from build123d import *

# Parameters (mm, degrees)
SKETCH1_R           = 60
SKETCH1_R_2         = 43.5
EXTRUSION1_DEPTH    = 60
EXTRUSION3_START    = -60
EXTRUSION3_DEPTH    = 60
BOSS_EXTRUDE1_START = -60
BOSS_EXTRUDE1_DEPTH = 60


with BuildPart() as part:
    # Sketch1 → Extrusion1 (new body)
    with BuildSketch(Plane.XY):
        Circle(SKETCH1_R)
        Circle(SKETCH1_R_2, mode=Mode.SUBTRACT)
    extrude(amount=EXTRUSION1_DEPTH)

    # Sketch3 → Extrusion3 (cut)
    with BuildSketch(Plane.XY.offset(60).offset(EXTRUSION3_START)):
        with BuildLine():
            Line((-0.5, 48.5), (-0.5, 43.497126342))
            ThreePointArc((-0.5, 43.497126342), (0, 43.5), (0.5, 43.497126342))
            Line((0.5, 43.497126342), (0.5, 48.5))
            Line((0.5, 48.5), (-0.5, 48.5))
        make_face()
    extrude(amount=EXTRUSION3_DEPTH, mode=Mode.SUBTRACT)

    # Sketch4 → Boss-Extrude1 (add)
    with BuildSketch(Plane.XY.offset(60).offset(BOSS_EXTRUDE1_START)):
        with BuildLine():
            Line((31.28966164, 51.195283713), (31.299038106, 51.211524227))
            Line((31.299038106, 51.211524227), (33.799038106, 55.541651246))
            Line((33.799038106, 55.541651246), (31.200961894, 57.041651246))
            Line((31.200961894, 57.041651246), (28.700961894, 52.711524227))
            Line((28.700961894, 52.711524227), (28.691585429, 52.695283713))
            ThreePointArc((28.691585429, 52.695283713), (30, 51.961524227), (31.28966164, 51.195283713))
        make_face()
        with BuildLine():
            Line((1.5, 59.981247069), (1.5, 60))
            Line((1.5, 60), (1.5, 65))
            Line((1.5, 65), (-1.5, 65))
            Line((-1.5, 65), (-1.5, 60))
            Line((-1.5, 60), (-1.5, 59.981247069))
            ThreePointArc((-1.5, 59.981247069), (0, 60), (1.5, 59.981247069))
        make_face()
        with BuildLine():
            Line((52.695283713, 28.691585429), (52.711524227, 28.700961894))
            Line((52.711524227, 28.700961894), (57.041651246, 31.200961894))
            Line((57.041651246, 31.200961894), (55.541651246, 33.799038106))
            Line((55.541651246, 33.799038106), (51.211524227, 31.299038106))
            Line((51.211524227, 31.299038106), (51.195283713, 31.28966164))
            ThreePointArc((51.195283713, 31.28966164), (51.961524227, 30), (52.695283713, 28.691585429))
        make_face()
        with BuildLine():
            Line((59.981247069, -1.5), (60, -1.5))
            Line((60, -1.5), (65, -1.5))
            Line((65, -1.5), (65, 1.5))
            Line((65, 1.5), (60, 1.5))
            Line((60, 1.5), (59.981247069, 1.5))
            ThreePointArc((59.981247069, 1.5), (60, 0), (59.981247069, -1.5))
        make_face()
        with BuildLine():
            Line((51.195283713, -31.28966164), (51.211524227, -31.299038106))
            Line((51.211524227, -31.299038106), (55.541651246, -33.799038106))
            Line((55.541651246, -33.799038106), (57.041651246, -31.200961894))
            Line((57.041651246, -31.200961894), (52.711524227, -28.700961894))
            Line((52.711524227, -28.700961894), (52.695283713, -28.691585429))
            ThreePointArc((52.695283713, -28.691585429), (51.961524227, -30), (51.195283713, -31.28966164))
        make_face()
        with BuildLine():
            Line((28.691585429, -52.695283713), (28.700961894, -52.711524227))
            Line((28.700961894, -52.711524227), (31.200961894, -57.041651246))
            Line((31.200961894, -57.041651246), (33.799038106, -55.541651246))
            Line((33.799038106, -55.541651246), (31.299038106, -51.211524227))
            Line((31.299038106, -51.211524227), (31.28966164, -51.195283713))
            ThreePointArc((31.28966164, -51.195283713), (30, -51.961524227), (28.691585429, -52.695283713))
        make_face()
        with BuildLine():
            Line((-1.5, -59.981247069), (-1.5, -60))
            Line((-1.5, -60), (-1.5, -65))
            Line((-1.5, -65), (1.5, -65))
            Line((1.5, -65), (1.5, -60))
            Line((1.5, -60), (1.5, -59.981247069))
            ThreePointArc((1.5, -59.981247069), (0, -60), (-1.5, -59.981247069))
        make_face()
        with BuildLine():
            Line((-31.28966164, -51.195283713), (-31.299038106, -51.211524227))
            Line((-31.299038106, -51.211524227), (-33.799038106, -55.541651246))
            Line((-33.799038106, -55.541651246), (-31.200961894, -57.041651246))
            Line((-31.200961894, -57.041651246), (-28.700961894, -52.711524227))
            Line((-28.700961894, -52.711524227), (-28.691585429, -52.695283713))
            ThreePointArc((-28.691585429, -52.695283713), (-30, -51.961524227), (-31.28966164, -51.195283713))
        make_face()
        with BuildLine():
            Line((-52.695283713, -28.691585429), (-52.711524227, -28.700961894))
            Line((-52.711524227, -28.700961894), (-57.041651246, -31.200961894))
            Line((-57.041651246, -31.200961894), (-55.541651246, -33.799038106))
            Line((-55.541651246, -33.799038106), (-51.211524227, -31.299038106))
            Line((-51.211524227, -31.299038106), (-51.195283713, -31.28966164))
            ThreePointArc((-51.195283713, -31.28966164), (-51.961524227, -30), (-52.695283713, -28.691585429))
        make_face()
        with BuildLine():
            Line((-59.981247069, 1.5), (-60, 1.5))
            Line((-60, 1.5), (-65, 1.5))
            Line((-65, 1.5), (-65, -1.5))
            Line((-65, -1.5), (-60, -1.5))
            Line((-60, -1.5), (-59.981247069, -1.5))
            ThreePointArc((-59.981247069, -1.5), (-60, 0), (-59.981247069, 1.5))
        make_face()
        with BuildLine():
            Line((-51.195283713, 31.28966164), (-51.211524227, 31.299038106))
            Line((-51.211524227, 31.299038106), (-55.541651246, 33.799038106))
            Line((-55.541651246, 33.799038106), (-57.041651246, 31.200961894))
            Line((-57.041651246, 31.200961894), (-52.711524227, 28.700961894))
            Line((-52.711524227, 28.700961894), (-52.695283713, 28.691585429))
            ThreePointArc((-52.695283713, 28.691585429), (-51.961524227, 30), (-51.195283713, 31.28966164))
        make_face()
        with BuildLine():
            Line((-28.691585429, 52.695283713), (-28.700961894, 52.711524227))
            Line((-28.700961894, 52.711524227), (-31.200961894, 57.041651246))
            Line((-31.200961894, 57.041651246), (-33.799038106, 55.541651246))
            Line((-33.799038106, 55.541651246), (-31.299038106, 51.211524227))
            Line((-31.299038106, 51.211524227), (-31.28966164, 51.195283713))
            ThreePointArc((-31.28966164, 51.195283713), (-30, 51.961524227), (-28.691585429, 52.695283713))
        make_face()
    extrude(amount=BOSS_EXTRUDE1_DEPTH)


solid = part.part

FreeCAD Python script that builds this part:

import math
import FreeCAD as App
import Part
import Sketcher
Q = App.Units.Quantity

doc = App.newDocument("Part")
body = doc.addObject("PartDesign::Body", "Body")

sketch1 = body.newObject("Sketcher::SketchObject", "Sketch")
sketch1.AttachmentSupport = (doc.getObject("XY_Plane"), [""])
sketch1.MapMode = "FlatFace"
sketch1.addGeometry([
    Part.Circle(App.Vector(0, 0, 0), App.Vector(0, 0, 1), 60),
    Part.Circle(App.Vector(0, 0, 0), App.Vector(0, 0, 1), 44),
], False)
sketch1.addConstraint([
    Sketcher.Constraint("Coincident", 0, 3, -1, 1),
    Sketcher.Constraint("Coincident", 1, 3, -1, 1),
    Sketcher.Constraint("Diameter", 0, Q("120 mm")),
    Sketcher.Constraint("Diameter", 1, Q("87 mm")),
])
pad1 = body.newObject("PartDesign::Pad", "Pad")
pad1.Profile = sketch1
pad1.Length = 60

sketch2 = body.newObject("Sketcher::SketchObject", "Sketch001")
sketch2.AttachmentSupport = (doc.getObject("XY_Plane"), [""])
sketch2.MapMode = "FlatFace"
sketch2.addGeometry([
    Part.LineSegment(App.Vector(-0.5, 48.5, 0), App.Vector(-0.5, 43.5, 0)),
    Part.ArcOfCircle(Part.Circle(App.Vector(0, 0, 0), App.Vector(0, 0, 1), 43.5), math.radians(89.34), math.radians(90.66)),
    Part.LineSegment(App.Vector(0.5, 43.5, 0), App.Vector(0.5, 48.5, 0)),
    Part.LineSegment(App.Vector(0.5, 48.5, 0), App.Vector(-0.5, 48.5, 0)),
], False)
sketch2.addConstraint([
    Sketcher.Constraint("Coincident", 0, 2, 1, 2),
    Sketcher.Constraint("Coincident", 1, 1, 2, 1),
    Sketcher.Constraint("Coincident", 2, 2, 3, 1),
    Sketcher.Constraint("Coincident", 3, 2, 0, 1),
    Sketcher.Constraint("Vertical", 0),
    Sketcher.Constraint("Vertical", 2),
    Sketcher.Constraint("Horizontal", 3),
    Sketcher.Constraint("Coincident", 1, 3, -1, 1),
    Sketcher.Constraint("Horizontal", 0, 2, 1, 1),
    Sketcher.Constraint("DistanceX", 3, 2, 3, 1, Q("1 mm")),
    Sketcher.Constraint("DistanceY", -1, 1, 2, 2, Q("48.5 mm")),
    Sketcher.Constraint("Radius", 1, Q("43.500002 mm")),
])
pocket1 = body.newObject("PartDesign::Pocket", "Pocket")
pocket1.Profile = sketch2
pocket1.Length = 60
pocket1.Reversed = True

sketch3 = body.newObject("Sketcher::SketchObject", "Sketch002")
sketch3.AttachmentSupport = (doc.getObject("XY_Plane"), [""])
sketch3.MapMode = "FlatFace"
sketch3.addGeometry([
    Part.LineSegment(App.Vector(31.29, 51.195, 0), App.Vector(31.299, 51.212, 0)),
    Part.LineSegment(App.Vector(31.299, 51.212, 0), App.Vector(33.799, 55.542, 0)),
    Part.LineSegment(App.Vector(33.799, 55.542, 0), App.Vector(31.201, 57.042, 0)),
    Part.LineSegment(App.Vector(31.201, 57.042, 0), App.Vector(28.701, 52.712, 0)),
    Part.LineSegment(App.Vector(28.701, 52.712, 0), App.Vector(28.692, 52.695, 0)),
    Part.ArcOfCircle(Part.Circle(App.Vector(0, 0, 0), App.Vector(0, 0, 1), 60), math.radians(58.57), math.radians(61.43)),
    Part.LineSegment(App.Vector(1.5, 59.981, 0), App.Vector(1.5, 65, 0)),
    Part.LineSegment(App.Vector(1.5, 65, 0), App.Vector(-1.5, 65, 0)),
    Part.LineSegment(App.Vector(-1.5, 65, 0), App.Vector(-1.5, 59.981, 0)),
    Part.ArcOfCircle(Part.Circle(App.Vector(0, 0, 0), App.Vector(0, 0, 1), 60), math.radians(88.57), math.radians(91.43)),
    Part.LineSegment(App.Vector(52.695, 28.692, 0), App.Vector(52.712, 28.701, 0)),
    Part.LineSegment(App.Vector(52.712, 28.701, 0), App.Vector(57.042, 31.201, 0)),
    Part.LineSegment(App.Vector(57.042, 31.201, 0), App.Vector(55.542, 33.799, 0)),
    Part.LineSegment(App.Vector(55.542, 33.799, 0), App.Vector(51.212, 31.299, 0)),
    Part.LineSegment(App.Vector(51.212, 31.299, 0), App.Vector(51.195, 31.29, 0)),
    Part.ArcOfCircle(Part.Circle(App.Vector(0, 0, 0), App.Vector(0, 0, 1), 60), math.radians(28.57), math.radians(31.43)),
    Part.LineSegment(App.Vector(59.981, -1.5, 0), App.Vector(65, -1.5, 0)),
    Part.LineSegment(App.Vector(65, -1.5, 0), App.Vector(65, 1.5, 0)),
    Part.LineSegment(App.Vector(65, 1.5, 0), App.Vector(59.981, 1.5, 0)),
    Part.ArcOfCircle(Part.Circle(App.Vector(0, 0, 0), App.Vector(0, 0, 1), 60), math.radians(-1.43), math.radians(1.43)),
    Part.LineSegment(App.Vector(51.195, -31.29, 0), App.Vector(51.212, -31.299, 0)),
    Part.LineSegment(App.Vector(51.212, -31.299, 0), App.Vector(55.542, -33.799, 0)),
    Part.LineSegment(App.Vector(55.542, -33.799, 0), App.Vector(57.042, -31.201, 0)),
    Part.LineSegment(App.Vector(57.042, -31.201, 0), App.Vector(52.712, -28.701, 0)),
    Part.LineSegment(App.Vector(52.712, -28.701, 0), App.Vector(52.695, -28.692, 0)),
    Part.ArcOfCircle(Part.Circle(App.Vector(0, 0, 0), App.Vector(0, 0, 1), 60), math.radians(-31.43), math.radians(-28.57)),
    Part.LineSegment(App.Vector(28.692, -52.695, 0), App.Vector(28.701, -52.712, 0)),
    Part.LineSegment(App.Vector(28.701, -52.712, 0), App.Vector(31.201, -57.042, 0)),
    Part.LineSegment(App.Vector(31.201, -57.042, 0), App.Vector(33.799, -55.542, 0)),
    Part.LineSegment(App.Vector(33.799, -55.542, 0), App.Vector(31.299, -51.212, 0)),
    Part.LineSegment(App.Vector(31.299, -51.212, 0), App.Vector(31.29, -51.195, 0)),
    Part.ArcOfCircle(Part.Circle(App.Vector(0, 0, 0), App.Vector(0, 0, 1), 60), math.radians(-61.43), math.radians(-58.57)),
    Part.LineSegment(App.Vector(-1.5, -59.981, 0), App.Vector(-1.5, -65, 0)),
    Part.LineSegment(App.Vector(-1.5, -65, 0), App.Vector(1.5, -65, 0)),
    Part.LineSegment(App.Vector(1.5, -65, 0), App.Vector(1.5, -59.981, 0)),
    Part.ArcOfCircle(Part.Circle(App.Vector(0, 0, 0), App.Vector(0, 0, 1), 60), math.radians(-91.43), math.radians(-88.57)),
    Part.LineSegment(App.Vector(-31.29, -51.195, 0), App.Vector(-31.299, -51.212, 0)),
    Part.LineSegment(App.Vector(-31.299, -51.212, 0), App.Vector(-33.799, -55.542, 0)),
    Part.LineSegment(App.Vector(-33.799, -55.542, 0), App.Vector(-31.201, -57.042, 0)),
    Part.LineSegment(App.Vector(-31.201, -57.042, 0), App.Vector(-28.701, -52.712, 0)),
    Part.LineSegment(App.Vector(-28.701, -52.712, 0), App.Vector(-28.692, -52.695, 0)),
    Part.ArcOfCircle(Part.Circle(App.Vector(0, 0, 0), App.Vector(0, 0, 1), 60), math.radians(-121.43), math.radians(-118.57)),
    Part.LineSegment(App.Vector(-52.695, -28.692, 0), App.Vector(-52.712, -28.701, 0)),
    Part.LineSegment(App.Vector(-52.712, -28.701, 0), App.Vector(-57.042, -31.201, 0)),
    Part.LineSegment(App.Vector(-57.042, -31.201, 0), App.Vector(-55.542, -33.799, 0)),
    Part.LineSegment(App.Vector(-55.542, -33.799, 0), App.Vector(-51.212, -31.299, 0)),
    Part.LineSegment(App.Vector(-51.212, -31.299, 0), App.Vector(-51.195, -31.29, 0)),
    Part.ArcOfCircle(Part.Circle(App.Vector(0, 0, 0), App.Vector(0, 0, 1), 60), math.radians(-151.43), math.radians(-148.57)),
    Part.LineSegment(App.Vector(-59.981, 1.5, 0), App.Vector(-65, 1.5, 0)),
    Part.LineSegment(App.Vector(-65, 1.5, 0), App.Vector(-65, -1.5, 0)),
    Part.LineSegment(App.Vector(-65, -1.5, 0), App.Vector(-59.981, -1.5, 0)),
    Part.ArcOfCircle(Part.Circle(App.Vector(0, 0, 0), App.Vector(0, 0, 1), 60), math.radians(178.57), math.radians(181.43)),
    Part.LineSegment(App.Vector(-51.195, 31.29, 0), App.Vector(-51.212, 31.299, 0)),
    Part.LineSegment(App.Vector(-51.212, 31.299, 0), App.Vector(-55.542, 33.799, 0)),
    Part.LineSegment(App.Vector(-55.542, 33.799, 0), App.Vector(-57.042, 31.201, 0)),
    Part.LineSegment(App.Vector(-57.042, 31.201, 0), App.Vector(-52.712, 28.701, 0)),
    Part.LineSegment(App.Vector(-52.712, 28.701, 0), App.Vector(-52.695, 28.692, 0)),
    Part.ArcOfCircle(Part.Circle(App.Vector(0, 0, 0), App.Vector(0, 0, 1), 60), math.radians(148.57), math.radians(151.43)),
    Part.LineSegment(App.Vector(-28.692, 52.695, 0), App.Vector(-28.701, 52.712, 0)),
    Part.LineSegment(App.Vector(-28.701, 52.712, 0), App.Vector(-31.201, 57.042, 0)),
    Part.LineSegment(App.Vector(-31.201, 57.042, 0), App.Vector(-33.799, 55.542, 0)),
    Part.LineSegment(App.Vector(-33.799, 55.542, 0), App.Vector(-31.299, 51.212, 0)),
    Part.LineSegment(App.Vector(-31.299, 51.212, 0), App.Vector(-31.29, 51.195, 0)),
    Part.ArcOfCircle(Part.Circle(App.Vector(0, 0, 0), App.Vector(0, 0, 1), 60), math.radians(118.57), math.radians(121.43)),
], False)
sketch3.addConstraint([
    Sketcher.Constraint("Coincident", 0, 2, 1, 1),
    Sketcher.Constraint("Coincident", 1, 2, 2, 1),
    Sketcher.Constraint("Coincident", 2, 2, 3, 1),
    Sketcher.Constraint("Coincident", 3, 2, 4, 1),
    Sketcher.Constraint("Coincident", 4, 2, 5, 2),
    Sketcher.Constraint("Coincident", 5, 1, 0, 1),
    Sketcher.Constraint("Coincident", 6, 2, 7, 1),
    Sketcher.Constraint("Coincident", 7, 2, 8, 1),
    Sketcher.Constraint("Coincident", 8, 2, 9, 2),
    Sketcher.Constraint("Coincident", 9, 1, 6, 1),
    Sketcher.Constraint("Coincident", 10, 2, 11, 1),
    Sketcher.Constraint("Coincident", 11, 2, 12, 1),
    Sketcher.Constraint("Coincident", 12, 2, 13, 1),
    Sketcher.Constraint("Coincident", 13, 2, 14, 1),
    Sketcher.Constraint("Coincident", 14, 2, 15, 2),
    Sketcher.Constraint("Coincident", 15, 1, 10, 1),
    Sketcher.Constraint("Coincident", 16, 2, 17, 1),
    Sketcher.Constraint("Coincident", 17, 2, 18, 1),
    Sketcher.Constraint("Coincident", 18, 2, 19, 2),
    Sketcher.Constraint("Coincident", 19, 1, 16, 1),
    Sketcher.Constraint("Coincident", 20, 2, 21, 1),
    Sketcher.Constraint("Coincident", 21, 2, 22, 1),
    Sketcher.Constraint("Coincident", 22, 2, 23, 1),
    Sketcher.Constraint("Coincident", 23, 2, 24, 1),
    Sketcher.Constraint("Coincident", 24, 2, 25, 2),
    Sketcher.Constraint("Coincident", 25, 1, 20, 1),
    Sketcher.Constraint("Coincident", 26, 2, 27, 1),
    Sketcher.Constraint("Coincident", 27, 2, 28, 1),
    Sketcher.Constraint("Coincident", 28, 2, 29, 1),
    Sketcher.Constraint("Coincident", 29, 2, 30, 1),
    Sketcher.Constraint("Coincident", 30, 2, 31, 2),
    Sketcher.Constraint("Coincident", 31, 1, 26, 1),
    Sketcher.Constraint("Coincident", 32, 2, 33, 1),
    Sketcher.Constraint("Coincident", 33, 2, 34, 1),
    Sketcher.Constraint("Coincident", 34, 2, 35, 2),
    Sketcher.Constraint("Coincident", 35, 1, 32, 1),
    Sketcher.Constraint("Coincident", 36, 2, 37, 1),
    Sketcher.Constraint("Coincident", 37, 2, 38, 1),
    Sketcher.Constraint("Coincident", 38, 2, 39, 1),
    Sketcher.Constraint("Coincident", 39, 2, 40, 1),
    Sketcher.Constraint("Coincident", 40, 2, 41, 2),
    Sketcher.Constraint("Coincident", 41, 1, 36, 1),
    Sketcher.Constraint("Coincident", 42, 2, 43, 1),
    Sketcher.Constraint("Coincident", 43, 2, 44, 1),
    Sketcher.Constraint("Coincident", 44, 2, 45, 1),
    Sketcher.Constraint("Coincident", 45, 2, 46, 1),
    Sketcher.Constraint("Coincident", 46, 2, 47, 2),
    Sketcher.Constraint("Coincident", 47, 1, 42, 1),
    Sketcher.Constraint("Coincident", 48, 2, 49, 1),
    Sketcher.Constraint("Coincident", 49, 2, 50, 1),
    Sketcher.Constraint("Coincident", 50, 2, 51, 2),
    Sketcher.Constraint("Coincident", 51, 1, 48, 1),
    Sketcher.Constraint("Coincident", 52, 2, 53, 1),
    Sketcher.Constraint("Coincident", 53, 2, 54, 1),
    Sketcher.Constraint("Coincident", 54, 2, 55, 1),
    Sketcher.Constraint("Coincident", 55, 2, 56, 1),
    Sketcher.Constraint("Coincident", 56, 2, 57, 2),
    Sketcher.Constraint("Coincident", 57, 1, 52, 1),
    Sketcher.Constraint("Coincident", 58, 2, 59, 1),
    Sketcher.Constraint("Coincident", 59, 2, 60, 1),
    Sketcher.Constraint("Coincident", 60, 2, 61, 1),
    Sketcher.Constraint("Coincident", 61, 2, 62, 1),
    Sketcher.Constraint("Coincident", 62, 2, 63, 2),
    Sketcher.Constraint("Coincident", 63, 1, 58, 1),
    Sketcher.Constraint("Vertical", 6),
    Sketcher.Constraint("Horizontal", 7),
    Sketcher.Constraint("Vertical", 8),
    Sketcher.Constraint("Horizontal", 16),
    Sketcher.Constraint("Vertical", 17),
    Sketcher.Constraint("Horizontal", 18),
    Sketcher.Constraint("Vertical", 32),
    Sketcher.Constraint("Horizontal", 33),
    Sketcher.Constraint("Vertical", 34),
    Sketcher.Constraint("Horizontal", 48),
    Sketcher.Constraint("Vertical", 49),
    Sketcher.Constraint("Horizontal", 50),
    Sketcher.Constraint("Coincident", 5, 3, -1, 1),
    Sketcher.Constraint("Coincident", 9, 3, -1, 1),
    Sketcher.Constraint("Coincident", 15, 3, -1, 1),
    Sketcher.Constraint("Coincident", 19, 3, -1, 1),
    Sketcher.Constraint("Coincident", 25, 3, -1, 1),
    Sketcher.Constraint("Coincident", 31, 3, -1, 1),
    Sketcher.Constraint("Coincident", 35, 3, -1, 1),
    Sketcher.Constraint("Coincident", 41, 3, -1, 1),
    Sketcher.Constraint("Coincident", 47, 3, -1, 1),
    Sketcher.Constraint("Coincident", 51, 3, -1, 1),
    Sketcher.Constraint("Coincident", 57, 3, -1, 1),
    Sketcher.Constraint("Coincident", 63, 3, -1, 1),
    Sketcher.Constraint("Equal", 5, 9),
    Sketcher.Constraint("Equal", 9, 15),
    Sketcher.Constraint("Equal", 15, 19),
    Sketcher.Constraint("Equal", 19, 25),
    Sketcher.Constraint("Equal", 25, 31),
    Sketcher.Constraint("Equal", 31, 35),
    Sketcher.Constraint("Equal", 35, 41),
    Sketcher.Constraint("Equal", 41, 47),
    Sketcher.Constraint("Equal", 47, 51),
    Sketcher.Constraint("Equal", 51, 57),
    Sketcher.Constraint("Equal", 57, 63),
    Sketcher.Constraint("Symmetric", 6, 2, 32, 2, -1, 1),
    Sketcher.Constraint("Symmetric", 0, 2, 36, 2, -1, 1),
    Sketcher.Constraint("Symmetric", 1, 2, 37, 2, -1, 1),
    Sketcher.Constraint("Symmetric", 2, 2, 38, 2, -1, 1),
    Sketcher.Constraint("Symmetric", 3, 2, 39, 2, -1, 1),
    Sketcher.Constraint("Symmetric", 10, 2, 42, 2, -1, 1),
    Sketcher.Constraint("Symmetric", 11, 2, 43, 2, -1, 1),
    Sketcher.Constraint("Symmetric", 12, 2, 44, 2, -1, 1),
    Sketcher.Constraint("Symmetric", 13, 2, 45, 2, -1, 1),
    Sketcher.Constraint("Symmetric", 16, 2, 48, 2, -1, 1),
    Sketcher.Constraint("Symmetric", 20, 2, 52, 2, -1, 1),
    Sketcher.Constraint("Symmetric", 21, 2, 53, 2, -1, 1),
    Sketcher.Constraint("Symmetric", 22, 2, 54, 2, -1, 1),
    Sketcher.Constraint("Symmetric", 23, 2, 55, 2, -1, 1),
    Sketcher.Constraint("Symmetric", 26, 2, 58, 2, -1, 1),
    Sketcher.Constraint("Symmetric", 27, 2, 59, 2, -1, 1),
    Sketcher.Constraint("Symmetric", 28, 2, 60, 2, -1, 1),
    Sketcher.Constraint("Symmetric", 29, 2, 61, 2, -1, 1),
    Sketcher.Constraint("Symmetric", 29, 2, 36, 2, -2),
    Sketcher.Constraint("Symmetric", 28, 2, 37, 2, -2),
    Sketcher.Constraint("Symmetric", 27, 2, 38, 2, -2),
    Sketcher.Constraint("Symmetric", 26, 2, 39, 2, -2),
    Sketcher.Constraint("Symmetric", 23, 2, 42, 2, -2),
    Sketcher.Constraint("Symmetric", 22, 2, 43, 2, -2),
    Sketcher.Constraint("Symmetric", 21, 2, 44, 2, -2),
    Sketcher.Constraint("Symmetric", 20, 2, 45, 2, -2),
    Sketcher.Constraint("Parallel", 0, 1),
    Sketcher.Constraint("Perpendicular", 1, 2),
    Sketcher.Constraint("Perpendicular", 2, 3),
    Sketcher.Constraint("Parallel", 3, 4),
    Sketcher.Constraint("Parallel", 10, 11),
    Sketcher.Constraint("Perpendicular", 11, 12),
    Sketcher.Constraint("Perpendicular", 12, 13),
    Sketcher.Constraint("Parallel", 13, 14),
    Sketcher.Constraint("Perpendicular", 4, 20),
    Sketcher.Constraint("Perpendicular", 3, 21),
    Sketcher.Constraint("Parallel", 23, 24),
    Sketcher.Constraint("Perpendicular", 14, 26),
    Sketcher.Constraint("Parallel", 29, 30),
    Sketcher.Constraint("Perpendicular", 24, 36),
    Sketcher.Constraint("Parallel", 39, 40),
    Sketcher.Constraint("Perpendicular", 30, 42),
    Sketcher.Constraint("Parallel", 45, 46),
    Sketcher.Constraint("Perpendicular", 40, 52),
    Sketcher.Constraint("Parallel", 55, 56),
    Sketcher.Constraint("Perpendicular", 46, 58),
    Sketcher.Constraint("Parallel", 61, 62),
    Sketcher.Constraint("Horizontal", 8, 2, 9, 1),
    Sketcher.Constraint("Horizontal", 34, 2, 35, 1),
    Sketcher.Constraint("Horizontal", 18, 2, 48, 2),
    Sketcher.Constraint("Horizontal", 19, 1, 49, 2),
    Sketcher.Constraint("Equal", 50, 6),
    Sketcher.Constraint("Equal", 33, 17),
    Sketcher.Constraint("Equal", 1, 3),
    Sketcher.Constraint("Equal", 0, 4),
    Sketcher.Constraint("Equal", 4, 10),
    Sketcher.Constraint("Equal", 3, 11),
    Sketcher.Constraint("Equal", 2, 12),
    Sketcher.Constraint("Equal", 11, 13),
    Sketcher.Constraint("Equal", 10, 14),
    Sketcher.Constraint("Radius", 5, Q("60 mm")),
    Sketcher.Constraint("DistanceX", 7, 2, 7, 1, Q("3 mm")),
    Sketcher.Constraint("Angle", 1, Q("60 deg")),
    Sketcher.Constraint("Distance", 1, Q("5 mm")),
    Sketcher.Constraint("Distance", 2, Q("3 mm")),
    Sketcher.Constraint("DistanceY", -1, 1, 6, 2, Q("65 mm")),
    Sketcher.Constraint("DistanceX", -1, 1, 0, 2, Q("31.299038 mm")),
])
pad2 = body.newObject("PartDesign::Pad", "Pad001")
pad2.Profile = sketch3
pad2.Length = 60

doc.recompute()
